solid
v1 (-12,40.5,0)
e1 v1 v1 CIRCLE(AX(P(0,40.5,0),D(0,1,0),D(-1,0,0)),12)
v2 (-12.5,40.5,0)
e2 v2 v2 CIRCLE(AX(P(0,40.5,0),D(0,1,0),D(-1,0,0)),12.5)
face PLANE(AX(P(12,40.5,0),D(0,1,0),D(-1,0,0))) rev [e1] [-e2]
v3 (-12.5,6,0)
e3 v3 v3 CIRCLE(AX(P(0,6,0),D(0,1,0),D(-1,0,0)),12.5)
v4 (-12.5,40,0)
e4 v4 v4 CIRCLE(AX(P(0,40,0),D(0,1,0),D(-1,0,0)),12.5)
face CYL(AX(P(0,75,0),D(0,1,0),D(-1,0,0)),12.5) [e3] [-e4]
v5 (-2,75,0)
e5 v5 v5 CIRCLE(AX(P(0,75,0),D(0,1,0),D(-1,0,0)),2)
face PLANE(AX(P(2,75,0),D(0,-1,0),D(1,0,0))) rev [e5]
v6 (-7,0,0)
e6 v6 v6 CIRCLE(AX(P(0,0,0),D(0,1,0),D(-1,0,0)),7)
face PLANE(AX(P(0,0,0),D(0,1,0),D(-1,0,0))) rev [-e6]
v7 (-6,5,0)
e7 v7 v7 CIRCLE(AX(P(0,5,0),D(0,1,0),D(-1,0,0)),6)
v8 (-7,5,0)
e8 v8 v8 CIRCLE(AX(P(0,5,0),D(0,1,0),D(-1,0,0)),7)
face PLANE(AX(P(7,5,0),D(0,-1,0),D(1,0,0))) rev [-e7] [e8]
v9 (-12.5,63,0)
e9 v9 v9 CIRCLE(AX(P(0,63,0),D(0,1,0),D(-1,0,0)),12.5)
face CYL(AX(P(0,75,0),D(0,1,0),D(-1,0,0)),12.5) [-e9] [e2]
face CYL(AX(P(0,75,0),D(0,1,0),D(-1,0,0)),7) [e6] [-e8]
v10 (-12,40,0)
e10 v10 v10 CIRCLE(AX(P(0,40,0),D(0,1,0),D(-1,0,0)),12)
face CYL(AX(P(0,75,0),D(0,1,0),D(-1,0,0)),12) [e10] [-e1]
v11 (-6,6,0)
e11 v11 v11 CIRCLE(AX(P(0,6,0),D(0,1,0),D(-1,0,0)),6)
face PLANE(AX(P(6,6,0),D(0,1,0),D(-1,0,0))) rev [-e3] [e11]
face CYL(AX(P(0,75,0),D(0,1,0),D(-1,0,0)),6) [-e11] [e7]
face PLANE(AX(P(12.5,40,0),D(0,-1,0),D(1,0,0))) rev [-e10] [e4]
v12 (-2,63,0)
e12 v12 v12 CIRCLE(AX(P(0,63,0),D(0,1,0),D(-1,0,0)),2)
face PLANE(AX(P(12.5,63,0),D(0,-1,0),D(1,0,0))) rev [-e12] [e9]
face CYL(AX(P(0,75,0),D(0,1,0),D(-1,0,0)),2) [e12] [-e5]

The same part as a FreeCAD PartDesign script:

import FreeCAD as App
import Part
import Sketcher

V = App.Vector


def add_polygon(sketch, points):
    """Adds a closed chain of lines whose ends are joined by coincident constraints."""
    first, n = sketch.GeometryCount, len(points)
    for a, b in zip(points, points[1:] + points[:1]):
        sketch.addGeometry(Part.LineSegment(App.Vector(*a, 0), App.Vector(*b, 0)), False)
    for i in range(n):
        sketch.addConstraint(Sketcher.Constraint("Coincident", first + i, 2, first + (i + 1) % n, 1))

doc = App.newDocument("Part")
body = doc.addObject("PartDesign::Body", "Body")

sketch1 = doc.addObject("Sketcher::SketchObject", "Sketch")
body.addObject(sketch1)
sketch1.AttachmentSupport = (doc.XY_Plane, [""])
sketch1.MapMode = "FlatFace"
add_polygon(sketch1, [(0, 0), (7, 0), (7, 5), (6, 5), (6, 6), (12.5, 6), (12.5, 40), (12, 40), (12, 40.5), (12.5, 40.5), (12.5, 63), (2, 63), (2, 75), (0, 75)])
sketch1.addConstraint([
    Sketcher.Constraint("Horizontal", 0),
    Sketcher.Constraint("Vertical", 1),
    Sketcher.Constraint("Horizontal", 2),
    Sketcher.Constraint("Vertical", 3),
    Sketcher.Constraint("Horizontal", 4),
    Sketcher.Constraint("Vertical", 5),
    Sketcher.Constraint("Horizontal", 6),
    Sketcher.Constraint("Vertical", 7),
    Sketcher.Constraint("Horizontal", 8),
    Sketcher.Constraint("Vertical", 9),
    Sketcher.Constraint("Horizontal", 10),
    Sketcher.Constraint("Vertical", 11),
    Sketcher.Constraint("Horizontal", 12),
    Sketcher.Constraint("Vertical", 13),
    Sketcher.Constraint("Coincident", 13, 2, -1, 1),
    Sketcher.Constraint("Vertical", 5, 2, 8, 2),
    Sketcher.Constraint("Equal", 2, 3),
    Sketcher.Constraint("Equal", 8, 7),
    Sketcher.Constraint("DistanceX", 0, 1, 0, 2, 7.0),
    Sketcher.Constraint("DistanceX", 2, 2, 2, 1, 1.0),
    Sketcher.Constraint("DistanceX", 12, 2, 12, 1, 2.0),
    Sketcher.Constraint("DistanceY", 1, 1, 1, 2, 5.0),
    Sketcher.Constraint("DistanceY", 5, 1, 5, 2, 34.0),
    Sketcher.Constraint("DistanceY", 11, 1, 11, 2, 12.0),
    Sketcher.Constraint("DistanceY", 13, 2, 13, 1, 75.0),
    Sketcher.Constraint("DistanceX", 4, 1, 4, 2, 6.5),
    Sketcher.Constraint("DistanceX", 6, 2, 6, 1, 0.5),
])
revolution = doc.addObject("PartDesign::Revolution", "Revolution")
body.addObject(revolution)
revolution.Profile = sketch1
revolution.ReferenceAxis = (sketch1, ["V_Axis"])
revolution.Angle = 360

doc.recompute()
